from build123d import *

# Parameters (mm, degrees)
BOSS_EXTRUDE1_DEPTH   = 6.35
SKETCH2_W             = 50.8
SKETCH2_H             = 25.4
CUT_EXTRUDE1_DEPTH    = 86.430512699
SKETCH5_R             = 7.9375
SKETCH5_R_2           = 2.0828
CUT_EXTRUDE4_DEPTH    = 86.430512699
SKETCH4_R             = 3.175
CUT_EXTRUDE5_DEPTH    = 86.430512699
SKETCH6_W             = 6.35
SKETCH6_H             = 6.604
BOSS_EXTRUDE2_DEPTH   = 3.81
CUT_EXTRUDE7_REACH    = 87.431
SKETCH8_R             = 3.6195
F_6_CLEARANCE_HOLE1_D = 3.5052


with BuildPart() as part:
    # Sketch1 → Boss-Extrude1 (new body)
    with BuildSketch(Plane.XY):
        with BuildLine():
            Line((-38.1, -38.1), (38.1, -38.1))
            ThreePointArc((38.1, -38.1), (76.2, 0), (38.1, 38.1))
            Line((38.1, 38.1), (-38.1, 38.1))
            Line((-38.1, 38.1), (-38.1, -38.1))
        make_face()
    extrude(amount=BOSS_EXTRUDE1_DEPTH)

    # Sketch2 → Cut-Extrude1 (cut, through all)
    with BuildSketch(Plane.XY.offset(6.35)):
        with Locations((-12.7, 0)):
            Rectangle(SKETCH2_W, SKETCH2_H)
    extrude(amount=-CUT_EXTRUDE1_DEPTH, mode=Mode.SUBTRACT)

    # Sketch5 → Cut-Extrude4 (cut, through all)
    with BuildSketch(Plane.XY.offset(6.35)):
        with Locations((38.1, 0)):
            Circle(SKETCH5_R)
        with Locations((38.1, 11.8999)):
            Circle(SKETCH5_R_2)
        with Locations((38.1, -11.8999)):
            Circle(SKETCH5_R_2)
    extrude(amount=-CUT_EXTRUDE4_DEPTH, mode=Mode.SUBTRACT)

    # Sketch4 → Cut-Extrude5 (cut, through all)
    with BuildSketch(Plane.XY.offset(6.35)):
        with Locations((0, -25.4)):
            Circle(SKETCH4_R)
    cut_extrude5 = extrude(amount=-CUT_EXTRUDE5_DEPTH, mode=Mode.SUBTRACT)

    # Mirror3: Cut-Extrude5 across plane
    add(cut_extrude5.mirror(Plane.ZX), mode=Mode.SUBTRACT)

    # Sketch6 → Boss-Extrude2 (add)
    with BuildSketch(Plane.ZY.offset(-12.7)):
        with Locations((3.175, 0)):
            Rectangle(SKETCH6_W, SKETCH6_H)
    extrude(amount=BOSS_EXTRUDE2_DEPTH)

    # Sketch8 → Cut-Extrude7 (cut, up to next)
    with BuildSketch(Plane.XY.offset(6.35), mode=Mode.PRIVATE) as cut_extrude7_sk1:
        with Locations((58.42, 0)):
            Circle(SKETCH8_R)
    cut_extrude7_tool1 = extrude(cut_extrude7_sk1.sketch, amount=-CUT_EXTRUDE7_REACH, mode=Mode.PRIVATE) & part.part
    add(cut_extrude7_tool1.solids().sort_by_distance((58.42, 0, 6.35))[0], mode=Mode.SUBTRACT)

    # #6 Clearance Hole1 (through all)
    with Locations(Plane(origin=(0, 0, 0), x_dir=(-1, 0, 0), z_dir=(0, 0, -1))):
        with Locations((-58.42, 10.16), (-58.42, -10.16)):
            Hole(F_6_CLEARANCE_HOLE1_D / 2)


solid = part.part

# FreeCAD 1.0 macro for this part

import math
import FreeCAD as App
import Part
import Sketcher
Q = App.Units.Quantity


def add_polygon(sketch, points):
    """Adds a closed chain of lines whose ends are joined by coincident constraints."""
    first, n = sketch.GeometryCount, len(points)
    for a, b in zip(points, points[1:] + points[:1]):
        sketch.addGeometry(Part.LineSegment(App.Vector(*a, 0), App.Vector(*b, 0)), False)
    for i in range(n):
        sketch.addConstraint(Sketcher.Constraint("Coincident", first + i, 2, first + (i + 1) % n, 1))

doc = App.newDocument("Part")
params = doc.addObject("Spreadsheet::Sheet", "Params")
for row, (alias, value) in enumerate([
    ("sketch1_radius", "1.5 in"),
    ("pad1_length", "0.25 in"),
    ("sketch2_width", "2 in"),
    ("sketch2_height", "1 in"),
    ("sketch3_diameter", "0.625 in"),
    ("sketch3_diameter2", "0.164 in"),
    ("sketch4_diameter", "0.25 in"),
    ("sketch5_width", "0.26 in"),
    ("sketch5_height", "0.25 in"),
    ("pad2_length", "0.15 in"),
    ("sketch6_diameter", "0.285 in"),
    ("sketch7_diameter", "0.138 in"),
    ("hole_diameter", "0.138 in"),
], start=1):
    params.set(f"A{row}", alias)
    params.set(f"B{row}", "=" + value)
    params.setAlias(f"B{row}", alias)

body = doc.addObject("PartDesign::Body", "Body")

# Sketch on XY plane
sketch1 = body.newObject("Sketcher::SketchObject", "Sketch")
sketch1.AttachmentSupport = (doc.getObject("XY_Plane"), [""])
sketch1.MapMode = "FlatFace"
sketch1.addGeometry([
    Part.LineSegment(App.Vector(-38.1, -38.1, 0), App.Vector(38.1, -38.1, 0)),
    Part.ArcOfCircle(Part.Circle(App.Vector(38.1, 0, 0), App.Vector(0, 0, 1), 38.1), math.radians(-90), math.radians(90)),
    Part.LineSegment(App.Vector(38.1, 38.1, 0), App.Vector(-38.1, 38.1, 0)),
    Part.LineSegment(App.Vector(-38.1, 38.1, 0), App.Vector(-38.1, -38.1, 0)),
], False)
sketch1.addConstraint([
    Sketcher.Constraint("Tangent", 0, 2, 1, 1),
    Sketcher.Constraint("Tangent", 1, 2, 2, 1),
    Sketcher.Constraint("Coincident", 2, 2, 3, 1),
    Sketcher.Constraint("Coincident", 3, 2, 0, 1),
    Sketcher.Constraint("Horizontal", 0),
    Sketcher.Constraint("Horizontal", 2),
    Sketcher.Constraint("Vertical", 3),
    Sketcher.Constraint("Symmetric", 0, 2, 2, 2, -1, 1),
    Sketcher.Constraint("Equal", 2, 3),
    Sketcher.Constraint("Radius", 1, Q("1.5 in")),
])
sketch1.setExpression("Constraints[9]", "Params.sketch1_radius")
pad1 = body.newObject("PartDesign::Pad", "Pad")
pad1.Profile = sketch1
pad1.setExpression("Length", "Params.pad1_length")

# Sketch on XY plane
sketch2 = body.newObject("Sketcher::SketchObject", "Sketch001")
sketch2.AttachmentSupport = (doc.getObject("XY_Plane"), [""])
sketch2.MapMode = "FlatFace"
sketch2.AttachmentOffset = App.Placement(App.Vector(0, 0, 0.25 * 25.4), App.Rotation())
add_polygon(sketch2, [(-38.1, 12.7), (-38.1, -12.7), (12.7, -12.7), (12.7, 12.7)])  # lines 0-3
sketch2.addConstraint([
    Sketcher.Constraint("Vertical", 0),
    Sketcher.Constraint("Horizontal", 1),
    Sketcher.Constraint("Vertical", 2),
    Sketcher.Constraint("Horizontal", 3),
    Sketcher.Constraint("DistanceX", 1, 1, 1, 2, Q("2 in")),
    Sketcher.Constraint("DistanceY", 0, 2, 0, 1, Q("1 in")),
    Sketcher.Constraint("DistanceX", 0, 2, -1, 1, Q("1.5 in")),
    Sketcher.Constraint("DistanceY", 0, 2, -1, 1, Q("0.5 in")),
])
sketch2.setExpression("Constraints[8]", "Params.sketch2_width")
sketch2.setExpression("Constraints[9]", "Params.sketch2_height")
pocket1 = body.newObject("PartDesign::Pocket", "Pocket")
pocket1.Profile = sketch2
pocket1.Type = "ThroughAll"

# Sketch on XY plane
sketch3 = body.newObject("Sketcher::SketchObject", "Sketch002")
sketch3.AttachmentSupport = (doc.getObject("XY_Plane"), [""])
sketch3.MapMode = "FlatFace"
sketch3.AttachmentOffset = App.Placement(App.Vector(0, 0, 0.25 * 25.4), App.Rotation())
sketch3.addGeometry([
    Part.Circle(App.Vector(38.1, 0, 0), App.Vector(0, 0, 1), 7.9375),
    Part.Circle(App.Vector(38.1, 11.8999, 0), App.Vector(0, 0, 1), 2.0828),
    Part.Circle(App.Vector(38.1, -11.8999, 0), App.Vector(0, 0, 1), 2.0828),
], False)
sketch3.addConstraint([
    Sketcher.Constraint("Equal", 1, 2),
    Sketcher.Constraint("Symmetric", 1, 3, 2, 3, -1),
    Sketcher.Constraint("PointOnObject", 0, 3, -1),
    Sketcher.Constraint("Vertical", 0, 3, 1, 3),
    Sketcher.Constraint("Diameter", 0, Q("0.625 in")),
    Sketcher.Constraint("Diameter", 1, Q("0.164 in")),
    Sketcher.Constraint("DistanceX", -1, 1, 0, 3, Q("1.5 in")),
    Sketcher.Constraint("DistanceY", 2, 3, 1, 3, Q("0.937 in")),
])
sketch3.setExpression("Constraints[4]", "Params.sketch3_diameter")
sketch3.setExpression("Constraints[5]", "Params.sketch3_diameter2")
pocket2 = body.newObject("PartDesign::Pocket", "Pocket001")
pocket2.Profile = sketch3
pocket2.Type = "ThroughAll"

# Sketch on XY plane
sketch4 = body.newObject("Sketcher::SketchObject", "Sketch003")
sketch4.AttachmentSupport = (doc.getObject("XY_Plane"), [""])
sketch4.MapMode = "FlatFace"
sketch4.AttachmentOffset = App.Placement(App.Vector(0, 0, 0.25 * 25.4), App.Rotation())
sketch4.addGeometry(Part.Circle(App.Vector(0, -25.4, 0), App.Vector(0, 0, 1), 3.175), False)
sketch4.addConstraint([
    Sketcher.Constraint("PointOnObject", 0, 3, -2),
    Sketcher.Constraint("Diameter", 0, Q("0.25 in")),
    Sketcher.Constraint("DistanceY", 0, 3, -1, 1, Q("1 in")),
])
sketch4.setExpression("Constraints[1]", "Params.sketch4_diameter")
pocket3 = body.newObject("PartDesign::Pocket", "Pocket002")
pocket3.Profile = sketch4
pocket3.Type = "ThroughAll"
doc.recompute()

mirrored = body.newObject("PartDesign::Mirrored", "Mirrored")
mirrored.Originals = [pocket3]
mirrored.MirrorPlane = (doc.getObject("XZ_Plane"), [""])
body.Tip = mirrored

# Sketch on YZ plane
sketch5 = body.newObject("Sketcher::SketchObject", "Sketch004")
sketch5.AttachmentSupport = (doc.getObject("YZ_Plane"), [""])
sketch5.MapMode = "FlatFace"
sketch5.AttachmentOffset = App.Placement(App.Vector(0, 0, 0.5 * 25.4), App.Rotation())
add_polygon(sketch5, [(3.302, 0), (-3.302, 0), (-3.302, 6.35), (3.302, 6.35)])  # lines 0-3
sketch5.addConstraint([
    Sketcher.Constraint("Horizontal", 0),
    Sketcher.Constraint("Vertical", 1),
    Sketcher.Constraint("Horizontal", 2),
    Sketcher.Constraint("Vertical", 3),
    Sketcher.Constraint("Symmetric", 0, 2, 3, 2, -1, 1),
    Sketcher.Constraint("DistanceX", 0, 2, 0, 1, Q("0.26 in")),
    Sketcher.Constraint("DistanceY", 1, 1, 1, 2, Q("0.25 in")),
])
sketch5.setExpression("Constraints[9]", "Params.sketch5_width")
sketch5.setExpression("Constraints[10]", "Params.sketch5_height")
pad2 = body.newObject("PartDesign::Pad", "Pad001")
pad2.Profile = sketch5
pad2.setExpression("Length", "Params.pad2_length")
pad2.Reversed = True

# Sketch on XY plane
sketch6 = body.newObject("Sketcher::SketchObject", "Sketch005")
sketch6.AttachmentSupport = (doc.getObject("XY_Plane"), [""])
sketch6.MapMode = "FlatFace"
sketch6.AttachmentOffset = App.Placement(App.Vector(0, 0, 0.25 * 25.4), App.Rotation())
sketch6.addGeometry(Part.Circle(App.Vector(58.42, 0, 0), App.Vector(0, 0, 1), 3.6195), False)
sketch6.addConstraint([
    Sketcher.Constraint("PointOnObject", 0, 3, -1),
    Sketcher.Constraint("Diameter", 0, Q("0.285 in")),
    Sketcher.Constraint("DistanceX", -1, 1, 0, 3, Q("2.3 in")),
])
sketch6.setExpression("Constraints[1]", "Params.sketch6_diameter")
pocket4 = body.newObject("PartDesign::Pocket", "Pocket003")
pocket4.Profile = sketch6
pocket4.Type = "UpToFirst"

# Sketch on XY plane
sketch7 = body.newObject("Sketcher::SketchObject", "Sketch006")
sketch7.AttachmentSupport = (doc.getObject("XY_Plane"), [""])
sketch7.MapMode = "FlatFace"
sketch7.addGeometry([
    Part.Circle(App.Vector(58.42, 10.16, 0), App.Vector(0, 0, 1), 1.7526),
    Part.Circle(App.Vector(58.42, -10.16, 0), App.Vector(0, 0, 1), 1.7526),
], False)
sketch7.addConstraint([
    Sketcher.Constraint("Equal", 0, 1),
    Sketcher.Constraint("Symmetric", 0, 3, 1, 3, -1),
    Sketcher.Constraint("Diameter", 0, Q("0.138 in")),
    Sketcher.Constraint("DistanceX", -1, 1, 0, 3, Q("2.3 in")),
    Sketcher.Constraint("DistanceY", -1, 1, 0, 3, Q("0.4 in")),
])
sketch7.setExpression("Constraints[2]", "Params.sketch7_diameter")
doc.recompute()
hole = body.newObject("PartDesign::Hole", "Hole")
hole.Profile = sketch7
hole.ThreadType = "None"
hole.setExpression("Diameter", "Params.hole_diameter")
hole.DepthType = "ThroughAll"
hole.Reversed = True

doc.recompute()
